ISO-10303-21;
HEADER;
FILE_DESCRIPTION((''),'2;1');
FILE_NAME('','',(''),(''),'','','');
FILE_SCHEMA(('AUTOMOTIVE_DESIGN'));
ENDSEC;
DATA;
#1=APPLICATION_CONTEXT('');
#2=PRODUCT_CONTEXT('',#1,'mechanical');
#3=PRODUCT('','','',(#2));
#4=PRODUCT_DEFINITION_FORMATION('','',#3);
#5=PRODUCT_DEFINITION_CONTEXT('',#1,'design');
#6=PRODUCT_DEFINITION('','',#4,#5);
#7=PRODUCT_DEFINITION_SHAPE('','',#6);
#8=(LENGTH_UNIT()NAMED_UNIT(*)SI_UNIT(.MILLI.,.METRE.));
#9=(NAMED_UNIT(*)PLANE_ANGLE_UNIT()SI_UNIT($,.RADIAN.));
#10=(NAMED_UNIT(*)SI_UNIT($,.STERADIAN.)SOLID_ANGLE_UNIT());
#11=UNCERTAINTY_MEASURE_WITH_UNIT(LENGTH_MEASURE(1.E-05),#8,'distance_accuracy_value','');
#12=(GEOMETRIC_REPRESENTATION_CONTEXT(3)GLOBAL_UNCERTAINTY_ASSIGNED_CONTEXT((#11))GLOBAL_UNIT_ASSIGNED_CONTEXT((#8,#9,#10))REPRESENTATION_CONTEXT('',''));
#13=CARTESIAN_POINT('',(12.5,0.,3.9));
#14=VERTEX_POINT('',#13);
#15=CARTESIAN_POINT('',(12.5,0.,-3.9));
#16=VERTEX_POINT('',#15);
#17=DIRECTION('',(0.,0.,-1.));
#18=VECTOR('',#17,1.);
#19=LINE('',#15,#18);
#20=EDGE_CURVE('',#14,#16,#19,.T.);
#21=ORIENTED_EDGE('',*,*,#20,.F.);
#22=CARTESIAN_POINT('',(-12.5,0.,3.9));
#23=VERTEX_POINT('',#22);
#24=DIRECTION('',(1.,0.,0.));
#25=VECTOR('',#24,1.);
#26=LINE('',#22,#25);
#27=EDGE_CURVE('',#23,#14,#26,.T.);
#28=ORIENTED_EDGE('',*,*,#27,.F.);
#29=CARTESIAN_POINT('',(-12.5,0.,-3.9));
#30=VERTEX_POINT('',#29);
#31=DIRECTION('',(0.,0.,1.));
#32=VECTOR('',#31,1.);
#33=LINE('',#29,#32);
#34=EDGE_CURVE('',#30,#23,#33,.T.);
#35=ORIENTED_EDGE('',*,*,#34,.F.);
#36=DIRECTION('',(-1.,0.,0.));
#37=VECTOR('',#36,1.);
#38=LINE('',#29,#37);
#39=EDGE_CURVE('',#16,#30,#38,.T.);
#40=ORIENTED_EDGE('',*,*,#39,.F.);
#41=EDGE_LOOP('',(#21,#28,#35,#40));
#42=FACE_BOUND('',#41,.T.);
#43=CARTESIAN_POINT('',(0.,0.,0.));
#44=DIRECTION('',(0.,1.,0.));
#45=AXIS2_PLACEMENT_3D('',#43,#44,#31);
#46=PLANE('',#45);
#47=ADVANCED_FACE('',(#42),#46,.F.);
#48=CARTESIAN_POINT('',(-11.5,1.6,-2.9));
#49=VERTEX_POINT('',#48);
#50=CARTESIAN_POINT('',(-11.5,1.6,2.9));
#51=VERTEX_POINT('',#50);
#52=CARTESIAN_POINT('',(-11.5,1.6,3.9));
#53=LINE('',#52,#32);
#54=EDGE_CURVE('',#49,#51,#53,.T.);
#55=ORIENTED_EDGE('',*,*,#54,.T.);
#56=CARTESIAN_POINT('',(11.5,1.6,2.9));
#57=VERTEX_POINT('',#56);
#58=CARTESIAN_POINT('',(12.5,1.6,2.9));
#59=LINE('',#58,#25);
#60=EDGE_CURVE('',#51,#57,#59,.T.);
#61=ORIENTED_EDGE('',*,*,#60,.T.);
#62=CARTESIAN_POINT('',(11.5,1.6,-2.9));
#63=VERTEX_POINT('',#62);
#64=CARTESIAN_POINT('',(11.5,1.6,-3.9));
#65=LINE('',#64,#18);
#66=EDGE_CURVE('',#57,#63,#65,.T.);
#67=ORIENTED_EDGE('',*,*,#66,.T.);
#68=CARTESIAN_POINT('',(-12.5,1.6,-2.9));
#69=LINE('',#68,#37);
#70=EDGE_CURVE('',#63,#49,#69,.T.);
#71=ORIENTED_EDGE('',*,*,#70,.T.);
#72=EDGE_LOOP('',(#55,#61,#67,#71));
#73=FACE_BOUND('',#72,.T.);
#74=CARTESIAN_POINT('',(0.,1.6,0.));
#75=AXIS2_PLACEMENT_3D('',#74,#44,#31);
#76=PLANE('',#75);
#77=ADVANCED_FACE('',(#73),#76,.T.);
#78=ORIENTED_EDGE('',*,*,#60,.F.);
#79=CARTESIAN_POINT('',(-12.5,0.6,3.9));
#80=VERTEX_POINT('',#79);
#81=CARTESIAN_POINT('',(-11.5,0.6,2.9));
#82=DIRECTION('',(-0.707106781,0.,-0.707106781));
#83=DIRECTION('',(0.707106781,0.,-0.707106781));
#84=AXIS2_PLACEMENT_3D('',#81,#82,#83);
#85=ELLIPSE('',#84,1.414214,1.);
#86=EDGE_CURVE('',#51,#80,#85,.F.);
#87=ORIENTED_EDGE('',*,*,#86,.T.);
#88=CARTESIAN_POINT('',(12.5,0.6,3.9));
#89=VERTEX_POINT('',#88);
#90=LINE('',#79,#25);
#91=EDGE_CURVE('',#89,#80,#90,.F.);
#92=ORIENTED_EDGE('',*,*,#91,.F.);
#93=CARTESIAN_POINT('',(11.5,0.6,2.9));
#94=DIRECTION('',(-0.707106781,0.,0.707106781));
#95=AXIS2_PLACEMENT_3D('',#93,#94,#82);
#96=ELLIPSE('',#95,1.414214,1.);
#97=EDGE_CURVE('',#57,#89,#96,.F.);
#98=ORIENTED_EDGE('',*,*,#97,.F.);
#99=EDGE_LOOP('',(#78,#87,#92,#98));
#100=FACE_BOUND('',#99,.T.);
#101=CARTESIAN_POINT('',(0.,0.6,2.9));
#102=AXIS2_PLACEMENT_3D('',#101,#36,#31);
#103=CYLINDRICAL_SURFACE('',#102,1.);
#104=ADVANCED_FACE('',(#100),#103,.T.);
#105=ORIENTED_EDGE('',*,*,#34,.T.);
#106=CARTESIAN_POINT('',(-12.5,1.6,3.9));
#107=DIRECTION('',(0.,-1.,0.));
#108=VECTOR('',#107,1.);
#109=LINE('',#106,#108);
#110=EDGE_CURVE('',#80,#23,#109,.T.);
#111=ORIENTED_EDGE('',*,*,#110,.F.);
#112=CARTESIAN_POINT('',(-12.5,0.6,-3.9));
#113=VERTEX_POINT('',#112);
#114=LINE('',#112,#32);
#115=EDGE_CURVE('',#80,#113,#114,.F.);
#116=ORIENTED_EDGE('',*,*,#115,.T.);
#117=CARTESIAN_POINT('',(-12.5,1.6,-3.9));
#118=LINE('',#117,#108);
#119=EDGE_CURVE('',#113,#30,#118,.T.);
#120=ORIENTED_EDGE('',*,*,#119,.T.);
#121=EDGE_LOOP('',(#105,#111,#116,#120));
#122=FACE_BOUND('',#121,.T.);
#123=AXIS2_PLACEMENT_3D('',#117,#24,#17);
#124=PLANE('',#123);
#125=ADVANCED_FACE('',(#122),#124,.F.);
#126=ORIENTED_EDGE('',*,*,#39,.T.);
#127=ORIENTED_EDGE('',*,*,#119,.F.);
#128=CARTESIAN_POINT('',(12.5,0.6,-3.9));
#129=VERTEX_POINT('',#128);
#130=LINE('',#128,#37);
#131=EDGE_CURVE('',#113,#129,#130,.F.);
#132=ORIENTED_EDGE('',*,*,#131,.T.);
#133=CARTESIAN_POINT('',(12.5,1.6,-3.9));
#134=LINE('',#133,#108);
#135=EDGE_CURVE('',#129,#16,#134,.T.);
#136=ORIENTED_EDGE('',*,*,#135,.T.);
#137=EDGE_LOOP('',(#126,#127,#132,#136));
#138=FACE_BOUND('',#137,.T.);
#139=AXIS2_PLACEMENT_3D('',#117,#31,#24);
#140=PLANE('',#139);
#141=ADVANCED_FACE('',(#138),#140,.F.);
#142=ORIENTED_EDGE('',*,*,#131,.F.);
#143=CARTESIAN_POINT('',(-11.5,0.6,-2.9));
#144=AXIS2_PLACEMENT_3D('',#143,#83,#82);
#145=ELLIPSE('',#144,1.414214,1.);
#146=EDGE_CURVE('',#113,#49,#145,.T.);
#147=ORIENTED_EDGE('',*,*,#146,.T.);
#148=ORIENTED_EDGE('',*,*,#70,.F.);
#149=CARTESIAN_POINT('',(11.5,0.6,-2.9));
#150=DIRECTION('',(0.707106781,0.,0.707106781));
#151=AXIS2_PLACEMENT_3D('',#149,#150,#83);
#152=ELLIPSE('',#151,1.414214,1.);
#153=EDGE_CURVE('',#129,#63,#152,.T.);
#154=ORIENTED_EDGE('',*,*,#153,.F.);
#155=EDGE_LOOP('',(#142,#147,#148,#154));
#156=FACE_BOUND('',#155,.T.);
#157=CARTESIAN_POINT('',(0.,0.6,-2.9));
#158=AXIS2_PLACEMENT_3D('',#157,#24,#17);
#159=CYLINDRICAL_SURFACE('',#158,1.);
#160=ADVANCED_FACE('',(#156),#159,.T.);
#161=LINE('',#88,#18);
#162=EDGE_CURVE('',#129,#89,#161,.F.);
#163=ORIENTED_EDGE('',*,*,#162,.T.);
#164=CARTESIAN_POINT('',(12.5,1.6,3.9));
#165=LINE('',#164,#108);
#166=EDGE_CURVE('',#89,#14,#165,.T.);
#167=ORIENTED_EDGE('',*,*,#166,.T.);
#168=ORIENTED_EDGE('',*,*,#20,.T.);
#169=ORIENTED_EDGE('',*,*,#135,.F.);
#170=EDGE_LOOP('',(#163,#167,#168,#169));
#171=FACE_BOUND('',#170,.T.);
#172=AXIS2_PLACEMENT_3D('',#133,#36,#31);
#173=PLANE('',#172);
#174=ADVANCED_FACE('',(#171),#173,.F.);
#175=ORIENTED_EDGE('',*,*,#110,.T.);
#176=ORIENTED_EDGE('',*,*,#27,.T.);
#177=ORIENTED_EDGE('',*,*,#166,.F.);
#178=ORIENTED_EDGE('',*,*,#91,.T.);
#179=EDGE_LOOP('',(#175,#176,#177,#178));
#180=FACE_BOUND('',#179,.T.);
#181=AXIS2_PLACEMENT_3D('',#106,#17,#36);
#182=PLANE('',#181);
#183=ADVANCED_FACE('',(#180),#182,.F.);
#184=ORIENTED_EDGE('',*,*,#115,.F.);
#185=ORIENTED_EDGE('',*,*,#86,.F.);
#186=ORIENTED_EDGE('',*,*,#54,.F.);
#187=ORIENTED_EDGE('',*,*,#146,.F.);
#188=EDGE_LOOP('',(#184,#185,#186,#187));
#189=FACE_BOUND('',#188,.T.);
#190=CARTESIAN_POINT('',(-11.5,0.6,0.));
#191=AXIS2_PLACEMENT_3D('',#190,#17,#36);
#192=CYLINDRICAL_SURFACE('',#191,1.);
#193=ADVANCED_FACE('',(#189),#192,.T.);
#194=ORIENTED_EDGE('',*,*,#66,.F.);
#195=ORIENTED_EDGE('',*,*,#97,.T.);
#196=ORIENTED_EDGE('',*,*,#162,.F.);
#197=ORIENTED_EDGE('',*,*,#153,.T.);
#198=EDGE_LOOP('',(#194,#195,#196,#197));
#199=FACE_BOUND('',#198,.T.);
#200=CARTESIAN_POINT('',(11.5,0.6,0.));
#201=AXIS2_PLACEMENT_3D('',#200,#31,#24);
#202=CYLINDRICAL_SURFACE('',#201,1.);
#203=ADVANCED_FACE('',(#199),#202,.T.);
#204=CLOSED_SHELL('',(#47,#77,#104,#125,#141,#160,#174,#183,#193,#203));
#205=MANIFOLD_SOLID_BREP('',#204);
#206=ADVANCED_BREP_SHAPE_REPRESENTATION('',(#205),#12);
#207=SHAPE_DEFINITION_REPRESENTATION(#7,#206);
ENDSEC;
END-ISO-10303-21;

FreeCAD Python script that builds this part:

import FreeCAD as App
import Part
import Sketcher
from FreeCAD import Vector


def edges_at(feature, points):
    """Names of the edges that pass closest to the given points."""
    edges = feature.Shape.Edges
    near = lambda p: min(range(len(edges)), key=lambda i: edges[i].distToShape(Part.Vertex(*p))[0])
    return sorted({f"Edge{near(p) + 1}" for p in points})


def add_polygon(sketch, points):
    """Adds a closed chain of lines whose ends are joined by coincident constraints."""
    first, n = sketch.GeometryCount, len(points)
    for a, b in zip(points, points[1:] + points[:1]):
        sketch.addGeometry(Part.LineSegment(App.Vector(*a, 0), App.Vector(*b, 0)), False)
    for i in range(n):
        sketch.addConstraint(Sketcher.Constraint("Coincident", first + i, 2, first + (i + 1) % n, 1))

doc = App.newDocument("Part")
body = doc.addObject("PartDesign::Body", "Body")

# Sketch on XZ plane
sketch1 = body.newObject("Sketcher::SketchObject", "Sketch")
sketch1.AttachmentSupport = (doc.getObject("XZ_Plane"), [""])
sketch1.MapMode = "FlatFace"
add_polygon(sketch1, [(-12, -4), (-12, 4), (12, 4), (12, -4)])  # lines 0-3
sketch1.addConstraint([
    Sketcher.Constraint("Vertical", 0),
    Sketcher.Constraint("Horizontal", 1),
    Sketcher.Constraint("Vertical", 2),
    Sketcher.Constraint("Horizontal", 3),
    Sketcher.Constraint("Symmetric", 0, 2, 2, 2, -1, 1),
    Sketcher.Constraint("DistanceX", 1, 1, 1, 2, 25.0),
    Sketcher.Constraint("DistanceY", 0, 1, 0, 2, 7.8),
])
pad1 = body.newObject("PartDesign::Pad", "Pad")
pad1.Profile = sketch1
pad1.Length = 1.6
pad1.Reversed = True
doc.recompute()

fillet = body.newObject("PartDesign::Fillet", "Fillet")
fillet.Base = (pad1, edges_at(pad1, [
    (-12.5, 1.6, 0),
    (0, 1.6, 3.9),
    (12.5, 1.6, 0),
    (0, 1.6, -3.9),
]))
fillet.Radius = 1

doc.recompute()
